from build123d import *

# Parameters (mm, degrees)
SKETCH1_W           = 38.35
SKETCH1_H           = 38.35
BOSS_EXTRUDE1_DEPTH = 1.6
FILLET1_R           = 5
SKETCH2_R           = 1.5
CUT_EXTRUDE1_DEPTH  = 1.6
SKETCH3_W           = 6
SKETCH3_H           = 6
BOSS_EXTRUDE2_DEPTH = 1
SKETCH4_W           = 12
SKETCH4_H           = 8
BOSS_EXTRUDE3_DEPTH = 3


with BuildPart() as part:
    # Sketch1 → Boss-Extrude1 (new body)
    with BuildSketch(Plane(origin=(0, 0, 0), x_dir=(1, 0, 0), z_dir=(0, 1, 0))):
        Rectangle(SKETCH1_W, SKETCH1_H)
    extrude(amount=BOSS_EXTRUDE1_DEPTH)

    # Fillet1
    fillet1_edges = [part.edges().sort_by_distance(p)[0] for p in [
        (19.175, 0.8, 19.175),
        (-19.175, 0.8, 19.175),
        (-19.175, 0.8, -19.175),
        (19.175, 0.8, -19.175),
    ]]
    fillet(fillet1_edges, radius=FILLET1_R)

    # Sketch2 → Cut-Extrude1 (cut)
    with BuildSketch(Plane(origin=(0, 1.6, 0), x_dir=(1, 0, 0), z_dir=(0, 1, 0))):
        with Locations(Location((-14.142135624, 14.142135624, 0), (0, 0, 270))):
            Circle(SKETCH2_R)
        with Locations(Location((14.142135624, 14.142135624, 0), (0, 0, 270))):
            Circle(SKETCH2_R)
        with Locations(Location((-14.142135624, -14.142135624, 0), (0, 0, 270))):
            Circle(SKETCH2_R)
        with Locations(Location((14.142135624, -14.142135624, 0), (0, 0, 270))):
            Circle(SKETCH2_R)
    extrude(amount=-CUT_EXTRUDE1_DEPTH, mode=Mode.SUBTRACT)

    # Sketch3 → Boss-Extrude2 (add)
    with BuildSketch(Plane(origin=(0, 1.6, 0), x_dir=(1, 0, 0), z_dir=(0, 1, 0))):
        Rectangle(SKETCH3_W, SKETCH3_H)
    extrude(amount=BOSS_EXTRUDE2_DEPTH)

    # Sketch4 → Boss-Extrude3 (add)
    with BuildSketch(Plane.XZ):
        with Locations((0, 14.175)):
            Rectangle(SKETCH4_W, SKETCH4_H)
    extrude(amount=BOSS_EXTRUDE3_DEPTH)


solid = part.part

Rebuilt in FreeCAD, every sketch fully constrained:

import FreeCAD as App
import Part
import Sketcher
from FreeCAD import Vector


def edges_at(feature, points):
    """Names of the edges that pass closest to the given points."""
    edges = feature.Shape.Edges
    near = lambda p: min(range(len(edges)), key=lambda i: edges[i].distToShape(Part.Vertex(*p))[0])
    return sorted({f"Edge{near(p) + 1}" for p in points})


def add_polygon(sketch, points):
    """Adds a closed chain of lines whose ends are joined by coincident constraints."""
    first, n = sketch.GeometryCount, len(points)
    for a, b in zip(points, points[1:] + points[:1]):
        sketch.addGeometry(Part.LineSegment(App.Vector(*a, 0), App.Vector(*b, 0)), False)
    for i in range(n):
        sketch.addConstraint(Sketcher.Constraint("Coincident", first + i, 2, first + (i + 1) % n, 1))

doc = App.newDocument("Part")
params = doc.addObject("Spreadsheet::Sheet", "Params")
for row, (alias, value) in enumerate([
    ("sketch1_width", "38.35 mm"),
    ("pad1_length", "1.6 mm"),
    ("fillet_radius", "5 mm"),
    ("sketch2_diameter", "3 mm"),
    ("pocket1_length", "1.6 mm"),
    ("sketch3_width", "6 mm"),
    ("pad2_length", "1 mm"),
    ("sketch4_width", "12 mm"),
    ("sketch4_height", "8 mm"),
    ("pad3_length", "3 mm"),
], start=1):
    params.set(f"A{row}", alias)
    params.set(f"B{row}", "=" + value)
    params.setAlias(f"B{row}", alias)

body = doc.addObject("PartDesign::Body", "Body")

sketch1 = body.newObject("Sketcher::SketchObject", "Sketch")
sketch1.AttachmentSupport = (doc.getObject("XZ_Plane"), [""])
sketch1.MapMode = "FlatFace"
add_polygon(sketch1, [(-19.175, -19.175), (-19.175, 19.175), (19.175, 19.175), (19.175, -19.175)])
sketch1.addConstraint([
    Sketcher.Constraint("Vertical", 0),
    Sketcher.Constraint("Horizontal", 1),
    Sketcher.Constraint("Vertical", 2),
    Sketcher.Constraint("Horizontal", 3),
    Sketcher.Constraint("Symmetric", 0, 2, 2, 2, -1, 1),
    Sketcher.Constraint("Equal", 3, 0),
    Sketcher.Constraint("DistanceX", 1, 1, 1, 2, 38.35),
])
sketch1.setExpression("Constraints[10]", "Params.sketch1_width")
pad1 = body.newObject("PartDesign::Pad", "Pad")
pad1.Profile = sketch1
pad1.setExpression("Length", "Params.pad1_length")
pad1.Reversed = True
doc.recompute()

fillet = body.newObject("PartDesign::Fillet", "Fillet")
fillet.Base = (pad1, edges_at(pad1, [
    (19.175, 0.8, 19.175),
    (-19.175, 0.8, 19.175),
    (-19.175, 0.8, -19.175),
    (19.175, 0.8, -19.175),
]))
fillet.setExpression("Radius", "Params.fillet_radius")

sketch2 = body.newObject("Sketcher::SketchObject", "Sketch001")
sketch2.AttachmentSupport = (doc.getObject("XZ_Plane"), [""])
sketch2.MapMode = "FlatFace"
sketch2.AttachmentOffset = App.Placement(Vector(0, 0, -1.6), App.Rotation())
sketch2.addGeometry([
    Part.Circle(Vector(-14.142136, -14.142136, 0), Vector(0, 0, 1), 1.5),
    Part.Circle(Vector(14.142136, -14.142136, 0), Vector(0, 0, 1), 1.5),
    Part.Circle(Vector(-14.142136, 14.142136, 0), Vector(0, 0, 1), 1.5),
    Part.Circle(Vector(14.142136, 14.142136, 0), Vector(0, 0, 1), 1.5),
], False)
sketch2.addConstraint([
    Sketcher.Constraint("Equal", 0, 1),
    Sketcher.Constraint("Equal", 1, 2),
    Sketcher.Constraint("Equal", 2, 3),
    Sketcher.Constraint("Symmetric", 1, 3, 2, 3, -1, 1),
    Sketcher.Constraint("Symmetric", 0, 3, 3, 3, -1, 1),
    Sketcher.Constraint("Symmetric", 0, 3, 1, 3, -2),
    Sketcher.Constraint("Diameter", 0, 3.0),
    Sketcher.Constraint("DistanceX", 0, 3, 1, 3, 28.284271),
    Sketcher.Constraint("DistanceY", 0, 3, 2, 3, 28.284271),
])
sketch2.setExpression("Constraints[6]", "Params.sketch2_diameter")
pocket1 = body.newObject("PartDesign::Pocket", "Pocket")
pocket1.Profile = sketch2
pocket1.setExpression("Length", "Params.pocket1_length")
pocket1.Reversed = True

sketch3 = body.newObject("Sketcher::SketchObject", "Sketch002")
sketch3.AttachmentSupport = (doc.getObject("XZ_Plane"), [""])
sketch3.MapMode = "FlatFace"
sketch3.AttachmentOffset = App.Placement(Vector(0, 0, -1.6), App.Rotation())
add_polygon(sketch3, [(-3, -3), (-3, 3), (3, 3), (3, -3)])
sketch3.addConstraint([
    Sketcher.Constraint("Vertical", 0),
    Sketcher.Constraint("Horizontal", 1),
    Sketcher.Constraint("Vertical", 2),
    Sketcher.Constraint("Horizontal", 3),
    Sketcher.Constraint("Symmetric", 0, 2, 2, 2, -1, 1),
    Sketcher.Constraint("Equal", 3, 0),
    Sketcher.Constraint("DistanceX", 1, 1, 1, 2, 6.0),
])
sketch3.setExpression("Constraints[10]", "Params.sketch3_width")
pad2 = body.newObject("PartDesign::Pad", "Pad001")
pad2.Profile = sketch3
pad2.setExpression("Length", "Params.pad2_length")
pad2.Reversed = True

sketch4 = body.newObject("Sketcher::SketchObject", "Sketch003")
sketch4.AttachmentSupport = (doc.getObject("XZ_Plane"), [""])
sketch4.MapMode = "FlatFace"
add_polygon(sketch4, [(-6, 18.175), (-6, 10.175), (6, 10.175), (6, 18.175)])
sketch4.addConstraint([
    Sketcher.Constraint("Vertical", 0),
    Sketcher.Constraint("Horizontal", 1),
    Sketcher.Constraint("Vertical", 2),
    Sketcher.Constraint("Horizontal", 3),
    Sketcher.Constraint("DistanceX", 1, 1, 1, 2, 12.0),
    Sketcher.Constraint("DistanceY", 0, 2, 0, 1, 8.0),
    Sketcher.Constraint("DistanceX", 0, 2, -1, 1, 6.0),
    Sketcher.Constraint("DistanceY", -1, 1, 0, 2, 10.175),
])
sketch4.setExpression("Constraints[8]", "Params.sketch4_width")
sketch4.setExpression("Constraints[9]", "Params.sketch4_height")
pad3 = body.newObject("PartDesign::Pad", "Pad002")
pad3.Profile = sketch4
pad3.setExpression("Length", "Params.pad3_length")

doc.recompute()
